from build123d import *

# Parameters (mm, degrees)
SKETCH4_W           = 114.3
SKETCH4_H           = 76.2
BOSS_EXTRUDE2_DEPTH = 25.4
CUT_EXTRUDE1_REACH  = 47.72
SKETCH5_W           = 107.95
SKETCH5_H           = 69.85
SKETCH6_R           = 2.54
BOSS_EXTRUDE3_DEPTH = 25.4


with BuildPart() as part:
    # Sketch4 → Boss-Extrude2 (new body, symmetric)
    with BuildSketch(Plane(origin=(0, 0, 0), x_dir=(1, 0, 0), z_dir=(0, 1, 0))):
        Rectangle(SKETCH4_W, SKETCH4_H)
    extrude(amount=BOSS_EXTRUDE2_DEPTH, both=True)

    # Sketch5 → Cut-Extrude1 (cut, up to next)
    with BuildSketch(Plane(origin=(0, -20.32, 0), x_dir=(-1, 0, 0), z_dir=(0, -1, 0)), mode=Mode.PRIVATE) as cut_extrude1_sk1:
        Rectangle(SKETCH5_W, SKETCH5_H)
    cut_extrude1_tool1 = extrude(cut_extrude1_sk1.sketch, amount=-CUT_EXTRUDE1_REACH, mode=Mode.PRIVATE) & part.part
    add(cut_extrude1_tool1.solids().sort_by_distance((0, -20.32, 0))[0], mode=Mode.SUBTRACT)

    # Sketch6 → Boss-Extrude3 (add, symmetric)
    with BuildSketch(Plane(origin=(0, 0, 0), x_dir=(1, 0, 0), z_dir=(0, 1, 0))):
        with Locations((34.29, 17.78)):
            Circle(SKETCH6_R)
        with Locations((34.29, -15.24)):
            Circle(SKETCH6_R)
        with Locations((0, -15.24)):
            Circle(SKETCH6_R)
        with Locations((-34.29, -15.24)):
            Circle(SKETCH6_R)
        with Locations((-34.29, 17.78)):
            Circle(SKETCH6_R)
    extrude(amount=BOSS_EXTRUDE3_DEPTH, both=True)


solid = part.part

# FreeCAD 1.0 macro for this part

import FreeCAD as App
import Part
import Sketcher
from FreeCAD import Vector
Q = App.Units.Quantity


def add_polygon(sketch, points):
    """Adds a closed chain of lines whose ends are joined by coincident constraints."""
    first, n = sketch.GeometryCount, len(points)
    for a, b in zip(points, points[1:] + points[:1]):
        sketch.addGeometry(Part.LineSegment(App.Vector(*a, 0), App.Vector(*b, 0)), False)
    for i in range(n):
        sketch.addConstraint(Sketcher.Constraint("Coincident", first + i, 2, first + (i + 1) % n, 1))

doc = App.newDocument("Part")
body = doc.addObject("PartDesign::Body", "Body")

sketch1 = body.newObject("Sketcher::SketchObject", "Sketch")
sketch1.AttachmentSupport = (doc.getObject("XZ_Plane"), [""])
sketch1.MapMode = "FlatFace"
add_polygon(sketch1, [(-57.15, -38.1), (-57.15, 38.1), (57.15, 38.1), (57.15, -38.1)])
sketch1.addConstraint([
    Sketcher.Constraint("Vertical", 0),
    Sketcher.Constraint("Horizontal", 1),
    Sketcher.Constraint("Vertical", 2),
    Sketcher.Constraint("Horizontal", 3),
    Sketcher.Constraint("Symmetric", 0, 2, 2, 2, -1, 1),
    Sketcher.Constraint("DistanceY", 0, 1, 0, 2, Q("3 in")),
    Sketcher.Constraint("DistanceX", 1, 1, 1, 2, Q("4.5 in")),
])
pad1 = body.newObject("PartDesign::Pad", "Pad")
pad1.Profile = sketch1
pad1.Length = Q("2 in")
pad1.Midplane = True

sketch2 = body.newObject("Sketcher::SketchObject", "Sketch001")
sketch2.AttachmentSupport = (doc.getObject("XZ_Plane"), [""])
sketch2.MapMode = "FlatFace"
sketch2.AttachmentOffset = App.Placement(Vector(0, 0, 0.8 * 25.4), App.Rotation())
add_polygon(sketch2, [(53.975, -34.925), (53.975, 34.925), (-53.975, 34.925), (-53.975, -34.925)])
sketch2.addConstraint([
    Sketcher.Constraint("Vertical", 0),
    Sketcher.Constraint("Horizontal", 1),
    Sketcher.Constraint("Vertical", 2),
    Sketcher.Constraint("Horizontal", 3),
    Sketcher.Constraint("Symmetric", 0, 2, 2, 2, -1, 1),
    Sketcher.Constraint("DistanceX", 1, 2, 1, 1, Q("4.25 in")),
    Sketcher.Constraint("DistanceY", 0, 1, 0, 2, Q("2.75 in")),
])
pocket1 = body.newObject("PartDesign::Pocket", "Pocket")
pocket1.Profile = sketch2
pocket1.Type = "UpToFirst"

sketch3 = body.newObject("Sketcher::SketchObject", "Sketch002")
sketch3.AttachmentSupport = (doc.getObject("XZ_Plane"), [""])
sketch3.MapMode = "FlatFace"
sketch3.addGeometry([
    Part.Circle(Vector(34.29, -17.78, 0), Vector(0, 0, 1), 2.54),
    Part.Circle(Vector(34.29, 15.24, 0), Vector(0, 0, 1), 2.54),
    Part.Circle(Vector(0, 15.24, 0), Vector(0, 0, 1), 2.54),
    Part.Circle(Vector(-34.29, 15.24, 0), Vector(0, 0, 1), 2.54),
    Part.Circle(Vector(-34.29, -17.78, 0), Vector(0, 0, 1), 2.54),
], False)
sketch3.addConstraint([
    Sketcher.Constraint("Equal", 0, 1),
    Sketcher.Constraint("Equal", 1, 2),
    Sketcher.Constraint("Equal", 2, 3),
    Sketcher.Constraint("Equal", 3, 4),
    Sketcher.Constraint("Symmetric", 1, 3, 3, 3, -2),
    Sketcher.Constraint("Symmetric", 0, 3, 4, 3, -2),
    Sketcher.Constraint("PointOnObject", 2, 3, -2),
    Sketcher.Constraint("Horizontal", 1, 3, 2, 3),
    Sketcher.Constraint("Vertical", 0, 3, 1, 3),
    Sketcher.Constraint("Diameter", 0, Q("0.2 in")),
    Sketcher.Constraint("DistanceY", 0, 3, -1, 1, Q("0.7 in")),
    Sketcher.Constraint("DistanceY", -1, 1, 1, 3, Q("0.6 in")),
    Sketcher.Constraint("DistanceX", 3, 3, 1, 3, Q("2.7 in")),
])
pad2 = body.newObject("PartDesign::Pad", "Pad001")
pad2.Profile = sketch3
pad2.Length = Q("2 in")
pad2.Midplane = True

doc.recompute()
